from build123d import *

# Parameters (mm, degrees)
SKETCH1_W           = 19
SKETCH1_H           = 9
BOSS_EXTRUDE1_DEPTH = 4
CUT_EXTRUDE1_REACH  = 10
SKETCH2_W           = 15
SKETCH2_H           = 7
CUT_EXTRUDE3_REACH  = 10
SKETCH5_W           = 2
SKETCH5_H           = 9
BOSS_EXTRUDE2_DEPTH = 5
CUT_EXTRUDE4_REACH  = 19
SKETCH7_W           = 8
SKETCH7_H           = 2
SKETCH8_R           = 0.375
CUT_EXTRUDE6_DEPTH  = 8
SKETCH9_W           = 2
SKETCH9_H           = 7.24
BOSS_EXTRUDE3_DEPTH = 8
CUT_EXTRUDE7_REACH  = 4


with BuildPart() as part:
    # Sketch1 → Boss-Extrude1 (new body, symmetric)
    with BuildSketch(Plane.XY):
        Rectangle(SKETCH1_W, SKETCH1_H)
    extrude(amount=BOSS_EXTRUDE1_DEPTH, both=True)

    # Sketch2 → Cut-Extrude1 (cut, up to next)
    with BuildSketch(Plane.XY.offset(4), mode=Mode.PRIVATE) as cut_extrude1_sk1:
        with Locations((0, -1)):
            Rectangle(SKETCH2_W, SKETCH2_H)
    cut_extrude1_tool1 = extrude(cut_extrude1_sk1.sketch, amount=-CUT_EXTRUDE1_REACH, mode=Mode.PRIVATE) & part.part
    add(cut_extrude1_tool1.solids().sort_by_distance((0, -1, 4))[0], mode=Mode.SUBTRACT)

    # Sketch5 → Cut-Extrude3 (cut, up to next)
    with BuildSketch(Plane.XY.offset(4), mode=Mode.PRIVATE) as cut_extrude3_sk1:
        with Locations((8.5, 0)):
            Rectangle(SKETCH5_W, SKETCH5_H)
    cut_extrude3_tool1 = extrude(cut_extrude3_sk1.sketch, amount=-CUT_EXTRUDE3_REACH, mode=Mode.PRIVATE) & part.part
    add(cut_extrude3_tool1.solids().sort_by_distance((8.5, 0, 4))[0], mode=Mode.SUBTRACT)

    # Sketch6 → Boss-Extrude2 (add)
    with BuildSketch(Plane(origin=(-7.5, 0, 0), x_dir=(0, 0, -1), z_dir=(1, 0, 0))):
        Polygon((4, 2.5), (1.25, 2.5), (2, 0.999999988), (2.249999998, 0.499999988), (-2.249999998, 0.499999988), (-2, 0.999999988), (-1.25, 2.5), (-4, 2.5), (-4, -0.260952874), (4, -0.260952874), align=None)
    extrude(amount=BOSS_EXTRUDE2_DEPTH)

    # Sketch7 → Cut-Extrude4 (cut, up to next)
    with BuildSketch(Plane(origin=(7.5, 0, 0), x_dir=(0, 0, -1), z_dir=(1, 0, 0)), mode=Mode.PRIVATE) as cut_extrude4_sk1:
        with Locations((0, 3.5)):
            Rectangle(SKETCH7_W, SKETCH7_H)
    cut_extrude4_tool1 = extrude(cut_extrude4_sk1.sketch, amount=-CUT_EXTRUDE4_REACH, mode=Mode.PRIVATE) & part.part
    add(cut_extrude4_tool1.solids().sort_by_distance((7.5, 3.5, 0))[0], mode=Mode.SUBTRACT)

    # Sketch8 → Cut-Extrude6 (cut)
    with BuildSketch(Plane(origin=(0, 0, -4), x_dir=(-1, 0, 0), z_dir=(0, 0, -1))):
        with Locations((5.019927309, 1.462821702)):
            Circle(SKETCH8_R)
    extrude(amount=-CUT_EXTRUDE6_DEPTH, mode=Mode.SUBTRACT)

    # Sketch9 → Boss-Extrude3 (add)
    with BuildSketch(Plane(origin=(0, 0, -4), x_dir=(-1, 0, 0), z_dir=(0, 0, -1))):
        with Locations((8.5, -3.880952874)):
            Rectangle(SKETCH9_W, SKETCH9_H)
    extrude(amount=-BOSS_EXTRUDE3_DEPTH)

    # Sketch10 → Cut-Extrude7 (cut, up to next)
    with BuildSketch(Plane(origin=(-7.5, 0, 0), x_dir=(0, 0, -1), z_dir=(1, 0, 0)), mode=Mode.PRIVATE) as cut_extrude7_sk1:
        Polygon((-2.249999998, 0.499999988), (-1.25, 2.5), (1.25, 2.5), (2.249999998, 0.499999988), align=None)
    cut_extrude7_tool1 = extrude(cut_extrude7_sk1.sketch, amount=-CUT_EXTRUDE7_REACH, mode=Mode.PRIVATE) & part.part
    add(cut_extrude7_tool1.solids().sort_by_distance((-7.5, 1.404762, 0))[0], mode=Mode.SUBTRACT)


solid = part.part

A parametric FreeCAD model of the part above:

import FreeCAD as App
import Part
import Sketcher

V = App.Vector


def add_polygon(sketch, points):
    """Adds a closed chain of lines whose ends are joined by coincident constraints."""
    first, n = sketch.GeometryCount, len(points)
    for a, b in zip(points, points[1:] + points[:1]):
        sketch.addGeometry(Part.LineSegment(App.Vector(*a, 0), App.Vector(*b, 0)), False)
    for i in range(n):
        sketch.addConstraint(Sketcher.Constraint("Coincident", first + i, 2, first + (i + 1) % n, 1))

doc = App.newDocument("Part")
body = doc.addObject("PartDesign::Body", "Body")

sketch1 = body.newObject("Sketcher::SketchObject", "Sketch")
sketch1.AttachmentSupport = (doc.getObject("XY_Plane"), [""])
sketch1.MapMode = "FlatFace"
add_polygon(sketch1, [(-10, 4), (-10, -4), (10, -4), (10, 4)])
sketch1.addConstraint([
    Sketcher.Constraint("Vertical", 0),
    Sketcher.Constraint("Horizontal", 1),
    Sketcher.Constraint("Vertical", 2),
    Sketcher.Constraint("Horizontal", 3),
    Sketcher.Constraint("Symmetric", 0, 2, 2, 2, -1, 1),
    Sketcher.Constraint("DistanceX", 1, 1, 1, 2, 19.0),
    Sketcher.Constraint("DistanceY", 0, 2, 0, 1, 9.0),
])
pad1 = body.newObject("PartDesign::Pad", "Pad")
pad1.Profile = sketch1
pad1.Length = 8
pad1.Midplane = True

sketch2 = body.newObject("Sketcher::SketchObject", "Sketch001")
sketch2.AttachmentSupport = (doc.getObject("XY_Plane"), [""])
sketch2.MapMode = "FlatFace"
sketch2.AttachmentOffset = App.Placement(V(0, 0, 4), App.Rotation())
add_polygon(sketch2, [(-8, 2), (-8, -4), (8, -4), (8, 2)])
sketch2.addConstraint([
    Sketcher.Constraint("Vertical", 0),
    Sketcher.Constraint("Horizontal", 1),
    Sketcher.Constraint("Vertical", 2),
    Sketcher.Constraint("Horizontal", 3),
    Sketcher.Constraint("DistanceX", 1, 1, 1, 2, 15.0),
    Sketcher.Constraint("DistanceY", 0, 2, 0, 1, 7.0),
    Sketcher.Constraint("DistanceX", 0, 2, -1, 1, 7.5),
    Sketcher.Constraint("DistanceY", 0, 2, -1, 1, 4.5),
])
pocket1 = body.newObject("PartDesign::Pocket", "Pocket")
pocket1.Profile = sketch2
pocket1.Type = "UpToFirst"

sketch3 = body.newObject("Sketcher::SketchObject", "Sketch002")
sketch3.AttachmentSupport = (doc.getObject("XY_Plane"), [""])
sketch3.MapMode = "FlatFace"
sketch3.AttachmentOffset = App.Placement(V(0, 0, 4), App.Rotation())
add_polygon(sketch3, [(7.5, 4.5), (7.5, -4.5), (9.5, -4.5), (9.5, 4.5)])
sketch3.addConstraint([
    Sketcher.Constraint("Vertical", 0),
    Sketcher.Constraint("Horizontal", 1),
    Sketcher.Constraint("Vertical", 2),
    Sketcher.Constraint("Horizontal", 3),
    Sketcher.Constraint("DistanceX", 1, 1, 1, 2, 2.0),
    Sketcher.Constraint("DistanceY", 0, 2, 0, 1, 9.0),
    Sketcher.Constraint("DistanceX", -1, 1, 0, 2, 7.5),
    Sketcher.Constraint("DistanceY", 0, 2, -1, 1, 4.5),
])
pocket2 = body.newObject("PartDesign::Pocket", "Pocket001")
pocket2.Profile = sketch3
pocket2.Type = "UpToFirst"

sketch4 = body.newObject("Sketcher::SketchObject", "Sketch003")
sketch4.AttachmentSupport = (doc.getObject("YZ_Plane"), [""])
sketch4.MapMode = "FlatFace"
sketch4.AttachmentOffset = App.Placement(V(0, 0, -7.5), App.Rotation())
add_polygon(sketch4, [(2.5, -4), (2.5, -1.2), (0.5, -2.2), (0.5, 2.2), (2.5, 1.2), (2.5, 4), (-0.3, 4), (-0.3, -4)])
sketch4.addConstraint([
    Sketcher.Constraint("Vertical", 0),
    Sketcher.Constraint("Vertical", 2),
    Sketcher.Constraint("Vertical", 4),
    Sketcher.Constraint("Horizontal", 5),
    Sketcher.Constraint("Vertical", 6),
    Sketcher.Constraint("Horizontal", 7),
    Sketcher.Constraint("Symmetric", 0, 2, 3, 2, -1),
    Sketcher.Constraint("Equal", 0, 4),
    Sketcher.Constraint("Equal", 1, 3),
    Sketcher.Constraint("DistanceY", 6, 2, 6, 1, 8.0),
    Sketcher.Constraint("DistanceY", 2, 1, 2, 2, 4.5),
    Sketcher.Constraint("DistanceX", 1, 2, 0, 2, 2.0),
    Sketcher.Constraint("DistanceY", 1, 2, 0, 2, 1.0),
    Sketcher.Constraint("DistanceX", -1, 1, 0, 2, 2.5),
    Sketcher.Constraint("DistanceX", 5, 2, 5, 1, 2.760953),
])
pad2 = body.newObject("PartDesign::Pad", "Pad001")
pad2.Profile = sketch4
pad2.Length = 5

sketch5 = body.newObject("Sketcher::SketchObject", "Sketch004")
sketch5.AttachmentSupport = (doc.getObject("YZ_Plane"), [""])
sketch5.MapMode = "FlatFace"
sketch5.AttachmentOffset = App.Placement(V(0, 0, 7.5), App.Rotation())
add_polygon(sketch5, [(4.5, 4), (2.5, 4), (2.5, -4), (4.5, -4)])
sketch5.addConstraint([
    Sketcher.Constraint("Horizontal", 0),
    Sketcher.Constraint("Vertical", 1),
    Sketcher.Constraint("Horizontal", 2),
    Sketcher.Constraint("Vertical", 3),
    Sketcher.Constraint("DistanceX", 0, 2, 0, 1, 2.0),
    Sketcher.Constraint("DistanceY", 1, 2, 1, 1, 8.0),
    Sketcher.Constraint("DistanceY", -1, 1, 0, 2, 4.0),
    Sketcher.Constraint("DistanceX", -1, 1, 0, 2, 2.5),
])
pocket3 = body.newObject("PartDesign::Pocket", "Pocket002")
pocket3.Profile = sketch5
pocket3.Type = "UpToFirst"

sketch6 = body.newObject("Sketcher::SketchObject", "Sketch005")
sketch6.AttachmentSupport = (doc.getObject("XY_Plane"), [""])
sketch6.MapMode = "FlatFace"
sketch6.AttachmentOffset = App.Placement(V(0, 0, -4), App.Rotation())
sketch6.addGeometry(Part.Circle(V(-5.02, 1.46, 0), V(0, 0, 1), 0.38), False)
sketch6.addConstraint([
    Sketcher.Constraint("Diameter", 0, 0.75),
    Sketcher.Constraint("DistanceY", -1, 1, 0, 3, 1.462822),
    Sketcher.Constraint("DistanceX", 0, 3, -1, 1, 5.019927),
])
pocket4 = body.newObject("PartDesign::Pocket", "Pocket003")
pocket4.Profile = sketch6
pocket4.Length = 8
pocket4.Reversed = True

sketch7 = body.newObject("Sketcher::SketchObject", "Sketch006")
sketch7.AttachmentSupport = (doc.getObject("XY_Plane"), [""])
sketch7.MapMode = "FlatFace"
sketch7.AttachmentOffset = App.Placement(V(0, 0, -4), App.Rotation())
add_polygon(sketch7, [(-7.5, -0.3), (-7.5, -7.5), (-9.5, -7.5), (-9.5, -0.3)])
sketch7.addConstraint([
    Sketcher.Constraint("Vertical", 0),
    Sketcher.Constraint("Horizontal", 1),
    Sketcher.Constraint("Vertical", 2),
    Sketcher.Constraint("Horizontal", 3),
    Sketcher.Constraint("DistanceX", 1, 2, 1, 1, 2.0),
    Sketcher.Constraint("DistanceY", 0, 2, 0, 1, 7.24),
    Sketcher.Constraint("DistanceX", 0, 2, -1, 1, 7.5),
    Sketcher.Constraint("DistanceY", 0, 2, -1, 1, 7.500953),
])
pad3 = body.newObject("PartDesign::Pad", "Pad002")
pad3.Profile = sketch7
pad3.Length = 8

sketch8 = body.newObject("Sketcher::SketchObject", "Sketch007")
sketch8.AttachmentSupport = (doc.getObject("YZ_Plane"), [""])
sketch8.MapMode = "FlatFace"
sketch8.AttachmentOffset = App.Placement(V(0, 0, -7.5), App.Rotation())
add_polygon(sketch8, [(2.5, 1.2), (0.5, 2.2), (0.5, -2.2), (2.5, -1.2)])
sketch8.addConstraint([
    Sketcher.Constraint("Vertical", 1),
    Sketcher.Constraint("Vertical", 3),
    Sketcher.Constraint("Equal", 0, 2),
    Sketcher.Constraint("DistanceY", 1, 2, 1, 1, 4.5),
    Sketcher.Constraint("DistanceY", 3, 1, 3, 2, 2.5),
    Sketcher.Constraint("DistanceX", 1, 2, 2, 2, 2.0),
    Sketcher.Constraint("DistanceX", -1, 1, 0, 2, 0.5),
    Sketcher.Constraint("DistanceY", -1, 1, 0, 2, 2.25),
])
pocket5 = body.newObject("PartDesign::Pocket", "Pocket004")
pocket5.Profile = sketch8
pocket5.Type = "UpToFirst"

doc.recompute()
